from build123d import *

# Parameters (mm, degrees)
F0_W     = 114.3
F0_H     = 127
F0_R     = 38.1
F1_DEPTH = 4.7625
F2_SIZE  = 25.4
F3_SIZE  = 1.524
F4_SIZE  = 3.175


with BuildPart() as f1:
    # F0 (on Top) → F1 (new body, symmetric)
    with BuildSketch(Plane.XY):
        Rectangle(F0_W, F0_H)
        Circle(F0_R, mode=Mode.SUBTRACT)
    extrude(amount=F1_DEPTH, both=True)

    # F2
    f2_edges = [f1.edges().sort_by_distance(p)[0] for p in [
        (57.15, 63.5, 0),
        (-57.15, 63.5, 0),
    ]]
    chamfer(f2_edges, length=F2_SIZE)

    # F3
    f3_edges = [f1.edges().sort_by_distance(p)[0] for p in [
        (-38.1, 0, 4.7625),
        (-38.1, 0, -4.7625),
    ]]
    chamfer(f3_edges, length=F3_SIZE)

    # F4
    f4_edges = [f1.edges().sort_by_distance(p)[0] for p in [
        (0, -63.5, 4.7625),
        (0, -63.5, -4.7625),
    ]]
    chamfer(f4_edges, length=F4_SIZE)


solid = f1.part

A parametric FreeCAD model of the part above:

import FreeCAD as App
import Part
import Sketcher

V = App.Vector
Q = App.Units.Quantity


def edges_at(feature, points):
    """Names of the edges that pass closest to the given points."""
    edges = feature.Shape.Edges
    near = lambda p: min(range(len(edges)), key=lambda i: edges[i].distToShape(Part.Vertex(*p))[0])
    return sorted({f"Edge{near(p) + 1}" for p in points})


def add_polygon(sketch, points):
    """Adds a closed chain of lines whose ends are joined by coincident constraints."""
    first, n = sketch.GeometryCount, len(points)
    for a, b in zip(points, points[1:] + points[:1]):
        sketch.addGeometry(Part.LineSegment(App.Vector(*a, 0), App.Vector(*b, 0)), False)
    for i in range(n):
        sketch.addConstraint(Sketcher.Constraint("Coincident", first + i, 2, first + (i + 1) % n, 1))

doc = App.newDocument("Part")
body = doc.addObject("PartDesign::Body", "Body")

sketch1 = body.newObject("Sketcher::SketchObject", "Sketch")
sketch1.AttachmentSupport = (doc.getObject("XY_Plane"), [""])
sketch1.MapMode = "FlatFace"
add_polygon(sketch1, [(-57, 64), (-57, -64), (57, -64), (57, 64)])
sketch1.addGeometry(Part.Circle(V(0, 0, 0), V(0, 0, 1), 38), False)
sketch1.addConstraint(Sketcher.Constraint("Vertical", 0))
sketch1.addConstraint(Sketcher.Constraint("Horizontal", 1))
sketch1.addConstraint(Sketcher.Constraint("Vertical", 2))
sketch1.addConstraint(Sketcher.Constraint("Horizontal", 3))
sketch1.addConstraint(Sketcher.Constraint("Coincident", 4, 3, -1, 1))
sketch1.addConstraint(Sketcher.Constraint("Symmetric", 0, 2, 2, 2, -1, 1))
sketch1.addConstraint(Sketcher.Constraint("Diameter", 4, Q("3 in")))
sketch1.addConstraint(Sketcher.Constraint("DistanceY", 0, 2, 0, 1, Q("5 in")))
sketch1.addConstraint(Sketcher.Constraint("DistanceX", 1, 1, 1, 2, Q("4.5 in")))
pad1 = body.newObject("PartDesign::Pad", "Pad")
pad1.Profile = sketch1
pad1.Length = Q("0.375 in")
pad1.Midplane = True
doc.recompute()

chamfer = body.newObject("PartDesign::Chamfer", "Chamfer")
chamfer.Base = (pad1, edges_at(pad1, [(57.15, 63.5, 0), (-57.15, 63.5, 0)]))
chamfer.Size = Q("1 in")
doc.recompute()

chamfer2 = body.newObject("PartDesign::Chamfer", "Chamfer001")
chamfer2.Base = (chamfer, edges_at(chamfer, [(-38.1, 0, 4.763), (-38.1, 0, -4.763)]))
chamfer2.Size = Q("0.06 in")
doc.recompute()

chamfer3 = body.newObject("PartDesign::Chamfer", "Chamfer002")
chamfer3.Base = (chamfer2, edges_at(chamfer2, [(0, -63.5, 4.763), (0, -63.5, -4.763)]))
chamfer3.Size = Q("0.125 in")

doc.recompute()
